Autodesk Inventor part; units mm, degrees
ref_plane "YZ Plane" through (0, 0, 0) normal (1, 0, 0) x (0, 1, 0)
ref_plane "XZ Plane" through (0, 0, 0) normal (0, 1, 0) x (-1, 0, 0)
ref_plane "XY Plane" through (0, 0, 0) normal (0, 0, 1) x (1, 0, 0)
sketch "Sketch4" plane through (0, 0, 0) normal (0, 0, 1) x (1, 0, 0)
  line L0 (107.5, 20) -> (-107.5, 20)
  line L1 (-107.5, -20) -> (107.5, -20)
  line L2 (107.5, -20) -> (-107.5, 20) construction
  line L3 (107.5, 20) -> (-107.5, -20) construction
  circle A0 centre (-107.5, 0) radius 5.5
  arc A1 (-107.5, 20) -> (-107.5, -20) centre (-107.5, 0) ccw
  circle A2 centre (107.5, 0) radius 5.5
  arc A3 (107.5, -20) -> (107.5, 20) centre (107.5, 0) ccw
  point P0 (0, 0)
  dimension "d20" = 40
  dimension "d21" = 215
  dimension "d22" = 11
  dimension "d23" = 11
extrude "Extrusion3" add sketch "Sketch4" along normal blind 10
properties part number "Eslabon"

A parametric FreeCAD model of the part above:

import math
import FreeCAD as App
import Part
import Sketcher
from FreeCAD import Vector

doc = App.newDocument("Part")
body = doc.addObject("PartDesign::Body", "Body")

# Sketch on XY plane
sketch1 = body.newObject("Sketcher::SketchObject", "Sketch")
sketch1.AttachmentSupport = (doc.getObject("XY_Plane"), [""])
sketch1.MapMode = "FlatFace"
sketch1.addGeometry([
    Part.ArcOfCircle(Part.Circle(Vector(108, 0, 0), Vector(0, 0, 1), 20), math.radians(-90), math.radians(90)),  # 0
    Part.LineSegment(Vector(108, 20, 0), Vector(-108, 20, 0)),  # 1
    Part.ArcOfCircle(Part.Circle(Vector(-108, 0, 0), Vector(0, 0, 1), 20), math.radians(90), math.radians(270)),  # 2
    Part.LineSegment(Vector(-108, -20, 0), Vector(108, -20, 0)),  # 3
    Part.Circle(Vector(-108, 0, 0), Vector(0, 0, 1), 6),  # 4
    Part.Circle(Vector(108, 0, 0), Vector(0, 0, 1), 6),  # 5
], False)
sketch1.addConstraint([
    Sketcher.Constraint("Tangent", 0, 2, 1, 1),
    Sketcher.Constraint("Tangent", 1, 2, 2, 1),
    Sketcher.Constraint("Tangent", 2, 2, 3, 1),
    Sketcher.Constraint("Tangent", 3, 2, 0, 1),
    Sketcher.Constraint("Horizontal", 1),
    Sketcher.Constraint("Horizontal", 3),
    Sketcher.Constraint("Coincident", 4, 3, 2, 3),
    Sketcher.Constraint("Coincident", 5, 3, 0, 3),
    Sketcher.Constraint("Equal", 4, 5),
    Sketcher.Constraint("Symmetric", 0, 3, 2, 3, -1, 1),
    Sketcher.Constraint("Diameter", 4, 11.0),
    Sketcher.Constraint("Radius", 0, 20.0),
    Sketcher.Constraint("DistanceX", 1, 2, 1, 1, 215.0),
])
pad1 = body.newObject("PartDesign::Pad", "Pad")
pad1.Profile = sketch1
pad1.Length = 10

doc.recompute()
